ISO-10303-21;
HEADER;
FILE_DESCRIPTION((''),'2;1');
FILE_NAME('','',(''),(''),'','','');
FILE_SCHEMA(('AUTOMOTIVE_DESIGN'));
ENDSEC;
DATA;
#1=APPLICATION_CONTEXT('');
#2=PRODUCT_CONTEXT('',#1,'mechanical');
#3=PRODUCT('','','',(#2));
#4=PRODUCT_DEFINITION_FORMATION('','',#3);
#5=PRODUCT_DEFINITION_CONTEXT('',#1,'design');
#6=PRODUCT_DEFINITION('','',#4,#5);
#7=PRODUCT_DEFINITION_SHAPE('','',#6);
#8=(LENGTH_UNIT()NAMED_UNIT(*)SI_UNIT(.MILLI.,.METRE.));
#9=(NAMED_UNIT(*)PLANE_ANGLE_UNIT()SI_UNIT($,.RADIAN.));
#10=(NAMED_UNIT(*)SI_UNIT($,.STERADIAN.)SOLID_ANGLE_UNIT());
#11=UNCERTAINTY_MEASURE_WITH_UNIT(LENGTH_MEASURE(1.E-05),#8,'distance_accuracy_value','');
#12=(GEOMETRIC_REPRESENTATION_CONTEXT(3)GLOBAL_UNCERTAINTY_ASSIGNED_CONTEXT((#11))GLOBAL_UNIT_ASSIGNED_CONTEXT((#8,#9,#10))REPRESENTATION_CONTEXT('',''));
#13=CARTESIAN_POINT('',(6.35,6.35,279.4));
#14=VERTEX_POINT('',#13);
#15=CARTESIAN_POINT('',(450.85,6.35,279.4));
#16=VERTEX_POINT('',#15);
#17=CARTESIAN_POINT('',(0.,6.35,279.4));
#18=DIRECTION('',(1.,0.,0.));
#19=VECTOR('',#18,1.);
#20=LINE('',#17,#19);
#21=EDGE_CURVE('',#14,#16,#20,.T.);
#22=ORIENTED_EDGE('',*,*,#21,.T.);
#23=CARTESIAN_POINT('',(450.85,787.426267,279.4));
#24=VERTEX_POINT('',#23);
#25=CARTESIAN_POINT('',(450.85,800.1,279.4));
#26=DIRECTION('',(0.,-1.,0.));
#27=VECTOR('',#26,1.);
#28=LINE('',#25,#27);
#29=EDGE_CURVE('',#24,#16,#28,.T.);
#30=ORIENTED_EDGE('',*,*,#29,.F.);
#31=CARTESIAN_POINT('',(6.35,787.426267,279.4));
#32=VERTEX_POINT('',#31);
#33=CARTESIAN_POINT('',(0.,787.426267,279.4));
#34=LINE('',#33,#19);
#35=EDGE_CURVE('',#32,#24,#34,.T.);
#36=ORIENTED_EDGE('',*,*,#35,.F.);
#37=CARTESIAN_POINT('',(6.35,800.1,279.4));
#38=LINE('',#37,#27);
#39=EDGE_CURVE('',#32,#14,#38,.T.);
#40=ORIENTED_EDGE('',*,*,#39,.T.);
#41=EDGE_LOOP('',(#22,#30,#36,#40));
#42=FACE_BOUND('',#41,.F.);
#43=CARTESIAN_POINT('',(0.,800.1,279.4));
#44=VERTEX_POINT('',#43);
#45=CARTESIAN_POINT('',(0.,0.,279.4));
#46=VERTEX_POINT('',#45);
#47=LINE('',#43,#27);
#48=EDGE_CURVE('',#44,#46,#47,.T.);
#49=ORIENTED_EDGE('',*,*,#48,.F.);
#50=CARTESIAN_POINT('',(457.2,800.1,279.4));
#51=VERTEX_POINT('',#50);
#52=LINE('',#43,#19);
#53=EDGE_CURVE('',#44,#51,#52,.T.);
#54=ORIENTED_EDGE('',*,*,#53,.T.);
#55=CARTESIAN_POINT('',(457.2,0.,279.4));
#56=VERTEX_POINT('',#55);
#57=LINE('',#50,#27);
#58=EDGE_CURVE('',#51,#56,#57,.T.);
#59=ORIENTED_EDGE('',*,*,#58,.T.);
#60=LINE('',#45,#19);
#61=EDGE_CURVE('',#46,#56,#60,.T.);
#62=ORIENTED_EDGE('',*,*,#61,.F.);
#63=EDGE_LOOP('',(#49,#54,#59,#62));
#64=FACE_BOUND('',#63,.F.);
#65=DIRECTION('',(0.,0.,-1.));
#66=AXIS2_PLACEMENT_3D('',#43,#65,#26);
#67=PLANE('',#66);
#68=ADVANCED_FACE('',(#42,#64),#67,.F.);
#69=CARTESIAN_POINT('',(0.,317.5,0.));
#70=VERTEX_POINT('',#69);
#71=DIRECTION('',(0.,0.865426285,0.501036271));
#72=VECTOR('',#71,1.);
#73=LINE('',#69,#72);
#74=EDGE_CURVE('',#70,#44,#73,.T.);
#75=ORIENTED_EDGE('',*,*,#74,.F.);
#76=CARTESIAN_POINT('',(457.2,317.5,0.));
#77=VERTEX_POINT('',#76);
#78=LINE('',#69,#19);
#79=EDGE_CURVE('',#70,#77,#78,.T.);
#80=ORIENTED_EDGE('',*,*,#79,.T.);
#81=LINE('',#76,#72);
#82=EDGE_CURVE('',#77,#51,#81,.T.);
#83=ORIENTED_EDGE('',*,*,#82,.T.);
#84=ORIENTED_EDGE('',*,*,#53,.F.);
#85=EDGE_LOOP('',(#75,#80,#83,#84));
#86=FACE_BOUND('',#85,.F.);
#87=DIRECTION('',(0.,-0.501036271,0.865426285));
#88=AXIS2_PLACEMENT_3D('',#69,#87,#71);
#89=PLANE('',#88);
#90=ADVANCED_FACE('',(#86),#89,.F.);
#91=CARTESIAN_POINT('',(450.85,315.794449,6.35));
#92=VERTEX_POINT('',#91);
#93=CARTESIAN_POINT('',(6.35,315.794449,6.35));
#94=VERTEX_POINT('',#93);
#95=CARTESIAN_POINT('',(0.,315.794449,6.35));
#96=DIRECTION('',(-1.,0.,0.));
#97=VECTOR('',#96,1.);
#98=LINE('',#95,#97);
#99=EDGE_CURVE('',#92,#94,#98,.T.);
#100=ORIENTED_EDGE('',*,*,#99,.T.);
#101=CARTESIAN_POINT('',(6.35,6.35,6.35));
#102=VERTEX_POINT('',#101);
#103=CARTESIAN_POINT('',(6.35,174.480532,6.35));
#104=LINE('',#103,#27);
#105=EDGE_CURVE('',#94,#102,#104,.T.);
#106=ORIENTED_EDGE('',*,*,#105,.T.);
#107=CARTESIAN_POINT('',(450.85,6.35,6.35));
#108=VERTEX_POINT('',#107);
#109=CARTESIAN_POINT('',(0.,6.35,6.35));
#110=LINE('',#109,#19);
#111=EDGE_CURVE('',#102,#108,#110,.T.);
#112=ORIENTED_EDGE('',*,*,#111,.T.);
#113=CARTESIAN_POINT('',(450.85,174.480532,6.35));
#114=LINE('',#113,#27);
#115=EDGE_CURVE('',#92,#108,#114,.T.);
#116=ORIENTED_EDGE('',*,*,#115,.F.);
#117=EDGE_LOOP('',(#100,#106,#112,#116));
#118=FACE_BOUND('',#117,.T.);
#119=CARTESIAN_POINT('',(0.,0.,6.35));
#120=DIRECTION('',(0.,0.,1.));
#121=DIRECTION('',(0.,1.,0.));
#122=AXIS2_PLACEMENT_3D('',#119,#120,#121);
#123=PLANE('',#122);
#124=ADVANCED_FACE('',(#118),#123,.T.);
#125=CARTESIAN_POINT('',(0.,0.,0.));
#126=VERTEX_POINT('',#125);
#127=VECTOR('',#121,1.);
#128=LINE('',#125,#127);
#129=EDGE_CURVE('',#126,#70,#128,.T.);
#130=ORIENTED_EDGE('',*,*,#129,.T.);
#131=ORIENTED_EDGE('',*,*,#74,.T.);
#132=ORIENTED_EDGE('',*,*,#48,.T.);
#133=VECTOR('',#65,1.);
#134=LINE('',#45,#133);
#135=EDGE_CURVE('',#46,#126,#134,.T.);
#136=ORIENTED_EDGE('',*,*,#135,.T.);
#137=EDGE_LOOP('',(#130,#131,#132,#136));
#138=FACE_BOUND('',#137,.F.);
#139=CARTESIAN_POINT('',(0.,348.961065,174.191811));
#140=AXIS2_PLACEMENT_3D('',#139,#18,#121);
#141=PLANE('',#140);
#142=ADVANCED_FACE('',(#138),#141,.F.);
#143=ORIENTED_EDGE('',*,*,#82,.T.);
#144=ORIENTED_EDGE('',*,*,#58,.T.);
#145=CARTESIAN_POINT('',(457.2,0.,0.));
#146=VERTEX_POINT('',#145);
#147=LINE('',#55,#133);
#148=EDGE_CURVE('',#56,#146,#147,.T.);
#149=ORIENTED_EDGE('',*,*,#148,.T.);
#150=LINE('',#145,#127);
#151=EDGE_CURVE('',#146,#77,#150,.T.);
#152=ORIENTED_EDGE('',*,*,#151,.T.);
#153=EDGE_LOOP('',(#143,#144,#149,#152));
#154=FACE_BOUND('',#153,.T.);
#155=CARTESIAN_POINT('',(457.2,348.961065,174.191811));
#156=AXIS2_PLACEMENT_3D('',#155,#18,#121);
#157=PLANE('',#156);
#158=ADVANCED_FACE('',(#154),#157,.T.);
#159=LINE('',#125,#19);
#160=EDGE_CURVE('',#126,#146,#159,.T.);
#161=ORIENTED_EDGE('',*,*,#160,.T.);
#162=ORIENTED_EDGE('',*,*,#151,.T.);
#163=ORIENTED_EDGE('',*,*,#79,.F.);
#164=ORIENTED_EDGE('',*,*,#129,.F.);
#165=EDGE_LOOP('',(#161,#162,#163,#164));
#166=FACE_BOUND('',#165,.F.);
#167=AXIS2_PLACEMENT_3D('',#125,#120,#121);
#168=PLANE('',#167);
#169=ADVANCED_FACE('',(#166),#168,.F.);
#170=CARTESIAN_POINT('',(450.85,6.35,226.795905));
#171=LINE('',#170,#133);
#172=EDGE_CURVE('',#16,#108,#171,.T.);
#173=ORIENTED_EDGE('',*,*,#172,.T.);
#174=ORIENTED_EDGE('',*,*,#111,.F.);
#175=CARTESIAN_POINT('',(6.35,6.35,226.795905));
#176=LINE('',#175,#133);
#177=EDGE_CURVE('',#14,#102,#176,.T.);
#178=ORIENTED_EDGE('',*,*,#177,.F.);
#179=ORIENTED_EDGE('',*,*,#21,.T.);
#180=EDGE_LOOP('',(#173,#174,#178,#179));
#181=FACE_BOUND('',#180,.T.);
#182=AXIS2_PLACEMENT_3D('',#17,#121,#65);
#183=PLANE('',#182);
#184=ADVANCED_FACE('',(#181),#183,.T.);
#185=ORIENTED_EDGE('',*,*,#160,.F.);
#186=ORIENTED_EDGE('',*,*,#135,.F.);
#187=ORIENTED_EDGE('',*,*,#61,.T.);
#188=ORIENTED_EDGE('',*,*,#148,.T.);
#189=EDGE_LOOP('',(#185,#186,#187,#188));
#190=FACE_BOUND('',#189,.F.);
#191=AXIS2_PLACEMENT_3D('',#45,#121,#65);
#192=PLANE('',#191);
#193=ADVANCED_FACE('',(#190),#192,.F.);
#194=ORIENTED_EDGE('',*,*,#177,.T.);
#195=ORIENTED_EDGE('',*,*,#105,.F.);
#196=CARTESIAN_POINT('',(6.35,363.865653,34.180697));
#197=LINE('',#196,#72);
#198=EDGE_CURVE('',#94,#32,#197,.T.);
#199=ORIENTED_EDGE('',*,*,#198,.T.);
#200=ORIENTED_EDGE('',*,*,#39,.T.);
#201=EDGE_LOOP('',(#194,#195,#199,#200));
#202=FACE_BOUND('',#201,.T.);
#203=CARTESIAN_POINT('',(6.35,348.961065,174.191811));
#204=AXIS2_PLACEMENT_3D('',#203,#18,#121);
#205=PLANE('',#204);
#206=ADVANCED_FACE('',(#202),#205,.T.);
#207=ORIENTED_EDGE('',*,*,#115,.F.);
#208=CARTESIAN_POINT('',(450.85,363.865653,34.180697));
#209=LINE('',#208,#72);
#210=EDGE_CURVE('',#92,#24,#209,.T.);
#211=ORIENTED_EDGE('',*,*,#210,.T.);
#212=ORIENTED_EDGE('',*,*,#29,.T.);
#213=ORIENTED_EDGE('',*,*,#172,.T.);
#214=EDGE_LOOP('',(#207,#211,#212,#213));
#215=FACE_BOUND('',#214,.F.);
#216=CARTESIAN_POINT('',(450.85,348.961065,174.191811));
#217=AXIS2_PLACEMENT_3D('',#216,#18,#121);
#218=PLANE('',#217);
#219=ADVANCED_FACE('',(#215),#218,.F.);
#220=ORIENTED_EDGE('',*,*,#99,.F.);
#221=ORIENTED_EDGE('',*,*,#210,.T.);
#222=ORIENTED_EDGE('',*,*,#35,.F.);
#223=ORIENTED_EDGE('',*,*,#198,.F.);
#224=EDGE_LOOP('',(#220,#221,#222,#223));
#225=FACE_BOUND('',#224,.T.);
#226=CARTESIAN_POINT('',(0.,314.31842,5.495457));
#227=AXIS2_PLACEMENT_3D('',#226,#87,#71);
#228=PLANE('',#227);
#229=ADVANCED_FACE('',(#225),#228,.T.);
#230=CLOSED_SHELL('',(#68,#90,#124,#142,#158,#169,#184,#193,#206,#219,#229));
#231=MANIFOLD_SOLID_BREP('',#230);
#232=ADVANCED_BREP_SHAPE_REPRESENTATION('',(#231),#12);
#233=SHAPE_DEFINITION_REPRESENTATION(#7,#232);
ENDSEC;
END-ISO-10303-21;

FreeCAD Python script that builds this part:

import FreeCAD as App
import Part
import Sketcher
from FreeCAD import Vector
Q = App.Units.Quantity


def faces_at(feature, points):
    """Names of the faces that lie closest to the given points."""
    faces = feature.Shape.Faces
    near = lambda p: min(range(len(faces)), key=lambda i: faces[i].distToShape(Part.Vertex(*p))[0])
    return sorted({f"Face{near(p) + 1}" for p in points})


def add_polygon(sketch, points):
    """Adds a closed chain of lines whose ends are joined by coincident constraints."""
    first, n = sketch.GeometryCount, len(points)
    for a, b in zip(points, points[1:] + points[:1]):
        sketch.addGeometry(Part.LineSegment(App.Vector(*a, 0), App.Vector(*b, 0)), False)
    for i in range(n):
        sketch.addConstraint(Sketcher.Constraint("Coincident", first + i, 2, first + (i + 1) % n, 1))

doc = App.newDocument("Part")
body = doc.addObject("PartDesign::Body", "Body")

# Sketch on YZ plane
sketch1 = doc.addObject("Sketcher::SketchObject", "Sketch")
body.addObject(sketch1)
sketch1.AttachmentSupport = (doc.YZ_Plane, [""])
sketch1.MapMode = "FlatFace"
add_polygon(sketch1, [(0, 279), (0, 0), (318, 0), (800, 279)])  # lines 0-3
sketch1.addConstraint([
    Sketcher.Constraint("Vertical", 0),
    Sketcher.Constraint("Horizontal", 1),
    Sketcher.Constraint("Horizontal", 3),
    Sketcher.Constraint("Coincident", 0, 2, -1, 1),
    Sketcher.Constraint("DistanceY", 0, 2, 0, 1, Q("11 in")),
    Sketcher.Constraint("DistanceX", 1, 1, 1, 2, Q("12.5 in")),
    Sketcher.Constraint("DistanceX", 3, 2, 3, 1, Q("31.5 in")),
])
pad1 = doc.addObject("PartDesign::Pad", "Pad")
body.addObject(pad1)
pad1.Profile = sketch1
pad1.Length = Q("18 in")
doc.recompute()

thickness = doc.addObject("PartDesign::Thickness", "Thickness")
body.addObject(thickness)
thickness.Base = (pad1, faces_at(pad1, [(228.6, 400.05, 279.4)]))
thickness.Value = Q("0.25 in")
thickness.Reversed = True
thickness.Join = "Arc"

doc.recompute()
